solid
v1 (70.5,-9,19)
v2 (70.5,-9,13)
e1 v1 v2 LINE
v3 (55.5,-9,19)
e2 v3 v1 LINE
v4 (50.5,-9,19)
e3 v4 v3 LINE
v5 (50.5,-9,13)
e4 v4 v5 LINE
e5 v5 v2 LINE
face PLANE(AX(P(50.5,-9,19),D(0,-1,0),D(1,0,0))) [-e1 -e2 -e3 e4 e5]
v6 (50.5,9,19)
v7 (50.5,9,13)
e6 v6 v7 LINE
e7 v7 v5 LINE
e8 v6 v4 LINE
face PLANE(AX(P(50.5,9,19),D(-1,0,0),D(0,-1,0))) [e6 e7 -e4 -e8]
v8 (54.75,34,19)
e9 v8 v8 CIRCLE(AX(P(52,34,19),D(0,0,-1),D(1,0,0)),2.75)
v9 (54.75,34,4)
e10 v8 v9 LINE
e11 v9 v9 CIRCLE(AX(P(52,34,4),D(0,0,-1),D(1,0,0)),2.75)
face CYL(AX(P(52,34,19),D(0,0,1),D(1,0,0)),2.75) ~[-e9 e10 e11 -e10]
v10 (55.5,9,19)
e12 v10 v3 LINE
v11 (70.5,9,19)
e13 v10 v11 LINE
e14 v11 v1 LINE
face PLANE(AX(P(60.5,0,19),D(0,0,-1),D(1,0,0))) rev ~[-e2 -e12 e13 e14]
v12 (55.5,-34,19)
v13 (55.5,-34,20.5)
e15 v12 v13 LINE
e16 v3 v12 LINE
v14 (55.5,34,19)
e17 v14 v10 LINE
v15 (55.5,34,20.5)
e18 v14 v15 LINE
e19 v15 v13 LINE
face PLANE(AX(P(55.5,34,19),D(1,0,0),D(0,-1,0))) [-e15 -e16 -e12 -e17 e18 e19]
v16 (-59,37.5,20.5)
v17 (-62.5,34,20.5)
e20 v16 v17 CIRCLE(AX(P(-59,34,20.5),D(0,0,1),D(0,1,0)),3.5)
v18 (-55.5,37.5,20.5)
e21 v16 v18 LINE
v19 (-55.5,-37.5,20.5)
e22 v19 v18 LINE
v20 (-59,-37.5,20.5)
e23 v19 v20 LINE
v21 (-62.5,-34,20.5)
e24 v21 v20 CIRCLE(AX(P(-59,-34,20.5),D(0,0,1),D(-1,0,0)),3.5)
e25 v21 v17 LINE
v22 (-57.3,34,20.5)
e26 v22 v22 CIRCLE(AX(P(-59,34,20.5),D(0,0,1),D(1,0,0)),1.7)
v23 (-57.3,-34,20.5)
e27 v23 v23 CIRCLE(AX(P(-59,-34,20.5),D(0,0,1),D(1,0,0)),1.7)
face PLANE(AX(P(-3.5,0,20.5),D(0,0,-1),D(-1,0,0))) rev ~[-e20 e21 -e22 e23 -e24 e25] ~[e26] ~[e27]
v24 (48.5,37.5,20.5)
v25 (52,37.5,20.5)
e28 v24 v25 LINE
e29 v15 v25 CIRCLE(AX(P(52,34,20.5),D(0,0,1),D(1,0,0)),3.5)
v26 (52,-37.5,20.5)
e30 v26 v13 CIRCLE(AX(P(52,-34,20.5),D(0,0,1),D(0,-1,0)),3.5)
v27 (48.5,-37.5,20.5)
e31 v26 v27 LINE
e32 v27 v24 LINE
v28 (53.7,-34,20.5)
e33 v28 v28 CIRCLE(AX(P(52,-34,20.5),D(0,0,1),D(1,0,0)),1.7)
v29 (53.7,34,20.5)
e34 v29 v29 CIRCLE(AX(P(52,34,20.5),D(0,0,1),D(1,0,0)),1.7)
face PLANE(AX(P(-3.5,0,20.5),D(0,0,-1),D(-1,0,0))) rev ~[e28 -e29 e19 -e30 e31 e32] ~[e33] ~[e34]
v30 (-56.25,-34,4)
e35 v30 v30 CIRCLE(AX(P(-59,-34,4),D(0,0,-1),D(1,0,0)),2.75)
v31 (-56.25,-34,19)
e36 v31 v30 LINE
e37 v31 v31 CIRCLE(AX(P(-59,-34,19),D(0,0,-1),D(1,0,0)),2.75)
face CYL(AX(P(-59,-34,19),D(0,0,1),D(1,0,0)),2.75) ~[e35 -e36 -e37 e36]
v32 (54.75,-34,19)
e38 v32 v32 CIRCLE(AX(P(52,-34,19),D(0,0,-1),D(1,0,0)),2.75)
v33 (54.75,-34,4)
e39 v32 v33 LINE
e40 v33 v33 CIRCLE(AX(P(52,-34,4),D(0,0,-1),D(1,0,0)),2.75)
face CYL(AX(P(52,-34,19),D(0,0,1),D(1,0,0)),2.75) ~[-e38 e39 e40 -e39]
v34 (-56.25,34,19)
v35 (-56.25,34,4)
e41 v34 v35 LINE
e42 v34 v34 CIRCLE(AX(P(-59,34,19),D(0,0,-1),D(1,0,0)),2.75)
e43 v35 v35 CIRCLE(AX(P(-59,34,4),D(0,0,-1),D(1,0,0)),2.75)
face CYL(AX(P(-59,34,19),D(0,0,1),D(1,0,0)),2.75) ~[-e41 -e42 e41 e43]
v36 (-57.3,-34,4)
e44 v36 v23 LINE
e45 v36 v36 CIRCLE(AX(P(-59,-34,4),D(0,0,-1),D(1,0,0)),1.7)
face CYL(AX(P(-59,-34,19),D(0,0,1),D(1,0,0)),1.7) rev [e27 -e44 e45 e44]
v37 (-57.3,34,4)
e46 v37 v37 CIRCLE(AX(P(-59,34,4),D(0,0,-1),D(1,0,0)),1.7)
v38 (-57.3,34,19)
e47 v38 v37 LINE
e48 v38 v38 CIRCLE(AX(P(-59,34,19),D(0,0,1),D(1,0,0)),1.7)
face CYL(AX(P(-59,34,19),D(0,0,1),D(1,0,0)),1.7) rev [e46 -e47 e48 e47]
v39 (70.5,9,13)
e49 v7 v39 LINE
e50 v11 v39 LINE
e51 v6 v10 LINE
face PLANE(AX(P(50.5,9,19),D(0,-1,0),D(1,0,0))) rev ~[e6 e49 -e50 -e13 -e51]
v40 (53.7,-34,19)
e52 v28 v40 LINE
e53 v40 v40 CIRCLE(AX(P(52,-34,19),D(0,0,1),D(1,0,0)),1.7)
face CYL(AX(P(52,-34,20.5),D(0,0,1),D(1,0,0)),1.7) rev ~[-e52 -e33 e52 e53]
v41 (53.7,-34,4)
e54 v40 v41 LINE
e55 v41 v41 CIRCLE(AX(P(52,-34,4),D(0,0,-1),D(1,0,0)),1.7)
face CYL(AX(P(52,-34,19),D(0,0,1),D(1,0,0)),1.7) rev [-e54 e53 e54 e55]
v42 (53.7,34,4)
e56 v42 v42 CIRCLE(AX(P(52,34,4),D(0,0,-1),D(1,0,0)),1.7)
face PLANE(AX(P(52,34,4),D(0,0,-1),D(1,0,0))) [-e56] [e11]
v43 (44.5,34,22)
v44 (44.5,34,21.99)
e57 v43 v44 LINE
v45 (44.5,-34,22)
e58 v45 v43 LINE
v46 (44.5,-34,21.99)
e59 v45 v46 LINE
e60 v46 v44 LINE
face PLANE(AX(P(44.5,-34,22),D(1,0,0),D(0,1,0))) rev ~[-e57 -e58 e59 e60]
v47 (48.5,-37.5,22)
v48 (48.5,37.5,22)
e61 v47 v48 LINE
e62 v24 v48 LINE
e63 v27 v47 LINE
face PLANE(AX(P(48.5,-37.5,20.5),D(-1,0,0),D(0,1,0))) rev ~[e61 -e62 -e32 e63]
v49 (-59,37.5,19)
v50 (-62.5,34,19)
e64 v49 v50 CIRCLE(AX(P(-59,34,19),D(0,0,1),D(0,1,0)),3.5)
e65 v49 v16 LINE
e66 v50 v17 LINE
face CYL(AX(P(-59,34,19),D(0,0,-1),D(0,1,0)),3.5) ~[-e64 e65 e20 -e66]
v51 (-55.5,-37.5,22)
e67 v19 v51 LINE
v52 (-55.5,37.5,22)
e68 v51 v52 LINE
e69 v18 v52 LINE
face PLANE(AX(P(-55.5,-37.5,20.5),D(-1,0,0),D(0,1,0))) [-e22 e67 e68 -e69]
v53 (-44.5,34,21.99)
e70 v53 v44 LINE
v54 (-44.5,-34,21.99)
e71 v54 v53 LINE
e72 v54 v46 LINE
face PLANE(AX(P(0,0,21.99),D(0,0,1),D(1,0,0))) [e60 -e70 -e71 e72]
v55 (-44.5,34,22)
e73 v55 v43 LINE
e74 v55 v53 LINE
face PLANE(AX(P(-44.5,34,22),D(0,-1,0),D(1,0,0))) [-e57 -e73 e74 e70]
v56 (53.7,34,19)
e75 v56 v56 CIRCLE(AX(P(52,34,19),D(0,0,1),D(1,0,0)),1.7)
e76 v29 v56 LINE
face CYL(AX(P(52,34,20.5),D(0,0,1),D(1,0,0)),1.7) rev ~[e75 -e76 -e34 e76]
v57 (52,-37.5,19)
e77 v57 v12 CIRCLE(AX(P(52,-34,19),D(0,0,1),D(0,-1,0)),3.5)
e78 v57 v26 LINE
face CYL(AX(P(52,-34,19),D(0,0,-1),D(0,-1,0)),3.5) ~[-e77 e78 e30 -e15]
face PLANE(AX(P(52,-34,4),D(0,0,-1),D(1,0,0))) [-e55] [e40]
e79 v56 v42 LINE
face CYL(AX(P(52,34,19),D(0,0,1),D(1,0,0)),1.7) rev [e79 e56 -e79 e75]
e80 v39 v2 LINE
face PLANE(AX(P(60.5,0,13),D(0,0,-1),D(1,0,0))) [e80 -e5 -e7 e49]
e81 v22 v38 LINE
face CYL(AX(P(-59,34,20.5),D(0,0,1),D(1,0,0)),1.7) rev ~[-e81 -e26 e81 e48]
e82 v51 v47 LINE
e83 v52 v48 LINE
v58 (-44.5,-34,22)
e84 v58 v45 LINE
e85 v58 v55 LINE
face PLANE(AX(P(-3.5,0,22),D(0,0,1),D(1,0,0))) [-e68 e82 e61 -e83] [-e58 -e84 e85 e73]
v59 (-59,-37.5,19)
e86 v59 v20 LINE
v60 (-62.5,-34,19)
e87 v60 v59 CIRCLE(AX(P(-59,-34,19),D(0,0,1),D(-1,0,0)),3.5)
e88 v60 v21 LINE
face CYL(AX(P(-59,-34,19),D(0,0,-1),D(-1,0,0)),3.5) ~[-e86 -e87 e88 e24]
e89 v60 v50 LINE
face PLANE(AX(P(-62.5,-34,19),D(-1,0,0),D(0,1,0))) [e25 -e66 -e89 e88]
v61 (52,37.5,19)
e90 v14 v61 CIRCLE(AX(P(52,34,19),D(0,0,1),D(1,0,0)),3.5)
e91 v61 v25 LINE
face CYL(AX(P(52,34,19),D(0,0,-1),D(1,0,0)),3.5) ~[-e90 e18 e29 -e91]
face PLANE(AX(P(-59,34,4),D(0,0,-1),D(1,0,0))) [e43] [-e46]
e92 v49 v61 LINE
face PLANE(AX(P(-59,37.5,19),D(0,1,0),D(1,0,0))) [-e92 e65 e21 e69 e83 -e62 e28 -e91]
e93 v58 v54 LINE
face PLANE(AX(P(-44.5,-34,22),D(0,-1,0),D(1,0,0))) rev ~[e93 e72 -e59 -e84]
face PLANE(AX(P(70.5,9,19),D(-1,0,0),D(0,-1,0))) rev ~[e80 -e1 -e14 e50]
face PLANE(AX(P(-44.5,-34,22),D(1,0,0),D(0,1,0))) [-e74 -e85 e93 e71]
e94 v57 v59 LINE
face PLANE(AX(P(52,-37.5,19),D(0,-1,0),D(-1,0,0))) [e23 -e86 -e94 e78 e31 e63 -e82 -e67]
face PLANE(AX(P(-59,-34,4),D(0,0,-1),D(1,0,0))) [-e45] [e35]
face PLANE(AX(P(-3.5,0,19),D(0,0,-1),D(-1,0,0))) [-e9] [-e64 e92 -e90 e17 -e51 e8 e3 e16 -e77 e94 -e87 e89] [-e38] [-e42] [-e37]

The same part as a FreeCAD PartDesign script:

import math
import FreeCAD as App
import Part
import Sketcher

V = App.Vector

doc = App.newDocument("Part")
body = doc.addObject("PartDesign::Body", "Body")

sketch1 = doc.addObject("Sketcher::SketchObject", "Sketch")
body.addObject(sketch1)
sketch1.AttachmentSupport = (doc.XY_Plane, [""])
sketch1.MapMode = "FlatFace"
sketch1.addGeometry([
    Part.LineSegment(V(114.5, 75, 0), V(3.5, 75, 0)),
    Part.ArcOfCircle(Part.Circle(V(3.5, 71.5, 0), V(0, 0, 1), 3.5), math.radians(90), math.radians(180)),
    Part.LineSegment(V(0, 71.5, 0), V(0, 3.5, 0)),
    Part.ArcOfCircle(Part.Circle(V(3.5, 3.5, 0), V(0, 0, 1), 3.5), math.radians(180), math.radians(270)),
    Part.LineSegment(V(3.5, 0, 0), V(114.5, 0, 0)),
    Part.ArcOfCircle(Part.Circle(V(114.5, 3.5, 0), V(0, 0, 1), 3.5), math.radians(-90), math.radians(0)),
    Part.LineSegment(V(118, 3.5, 0), V(118, 71.5, 0)),
    Part.ArcOfCircle(Part.Circle(V(114.5, 71.5, 0), V(0, 0, 1), 3.5), math.radians(0), math.radians(90)),
], False)
sketch1.addConstraint([
    Sketcher.Constraint("Tangent", 0, 2, 1, 1),
    Sketcher.Constraint("Tangent", 1, 2, 2, 1),
    Sketcher.Constraint("Tangent", 2, 2, 3, 1),
    Sketcher.Constraint("Tangent", 3, 2, 4, 1),
    Sketcher.Constraint("Tangent", 4, 2, 5, 1),
    Sketcher.Constraint("Tangent", 5, 2, 6, 1),
    Sketcher.Constraint("Tangent", 6, 2, 7, 1),
    Sketcher.Constraint("Tangent", 7, 2, 0, 1),
    Sketcher.Constraint("Horizontal", 0),
    Sketcher.Constraint("Vertical", 2),
    Sketcher.Constraint("Horizontal", 4),
    Sketcher.Constraint("Vertical", 6),
    Sketcher.Constraint("Equal", 1, 3),
    Sketcher.Constraint("Equal", 3, 5),
    Sketcher.Constraint("Equal", 5, 7),
    Sketcher.Constraint("PointOnObject", 1, 2, -2),
    Sketcher.Constraint("PointOnObject", 3, 2, -1),
    Sketcher.Constraint("Radius", 1, 3.5),
    Sketcher.Constraint("DistanceX", 0, 2, 0, 1, 111.0),
    Sketcher.Constraint("DistanceY", 2, 2, 2, 1, 68.0),
])
pad1 = doc.addObject("PartDesign::Pad", "Pad")
body.addObject(pad1)
pad1.Profile = sketch1
pad1.Length = 1.5

sketch2 = doc.addObject("Sketcher::SketchObject", "Sketch001")
body.addObject(sketch2)
sketch2.AttachmentSupport = (doc.XY_Plane, [""])
sketch2.MapMode = "FlatFace"
sketch2.AttachmentOffset = App.Placement(V(0, 0, 1.5), App.Rotation())
sketch2.addGeometry([
    Part.Circle(V(3.5, 3.5, 0), V(0, 0, 1), 1.7),
    Part.Circle(V(3.5, 71.5, 0), V(0, 0, 1), 1.7),
    Part.Circle(V(114.5, 71.5, 0), V(0, 0, 1), 1.7),
    Part.Circle(V(114.5, 3.5, 0), V(0, 0, 1), 1.7),
], False)
sketch2.addConstraint([
    Sketcher.Constraint("Equal", 0, 1),
    Sketcher.Constraint("Equal", 1, 2),
    Sketcher.Constraint("Equal", 2, 3),
    Sketcher.Constraint("Horizontal", 1, 3, 2, 3),
    Sketcher.Constraint("Horizontal", 0, 3, 3, 3),
    Sketcher.Constraint("Vertical", 0, 3, 1, 3),
    Sketcher.Constraint("Vertical", 2, 3, 3, 3),
    Sketcher.Constraint("Diameter", 0, 3.4),
    Sketcher.Constraint("DistanceY", 0, 3, 1, 3, 68.0),
    Sketcher.Constraint("DistanceX", 1, 3, 2, 3, 111.0),
    Sketcher.Constraint("DistanceX", -1, 1, 0, 3, 3.5),
    Sketcher.Constraint("DistanceY", -1, 1, 0, 3, 3.5),
])
pocket1 = doc.addObject("PartDesign::Pocket", "Pocket")
body.addObject(pocket1)
pocket1.Profile = sketch2
pocket1.Type = "ThroughAll"

sketch3 = doc.addObject("Sketcher::SketchObject", "Sketch002")
body.addObject(sketch3)
sketch3.AttachmentSupport = (doc.XY_Plane, [""])
sketch3.MapMode = "FlatFace"
sketch3.AttachmentOffset = App.Placement(V(0, 0, 1.5), App.Rotation())
sketch3.addGeometry([
    Part.LineSegment(V(7, 75, 0), V(7, 0, 0)),
    Part.LineSegment(V(7, 0, 0), V(111, 0, 0)),
    Part.LineSegment(V(111, 0, 0), V(111, 75, 0)),
    Part.LineSegment(V(111, 75, 0), V(7, 75, 0)),
], False)
sketch3.addConstraint([
    Sketcher.Constraint("Coincident", 0, 2, 1, 1),
    Sketcher.Constraint("Coincident", 1, 2, 2, 1),
    Sketcher.Constraint("Coincident", 2, 2, 3, 1),
    Sketcher.Constraint("Coincident", 3, 2, 0, 1),
    Sketcher.Constraint("Vertical", 0),
    Sketcher.Constraint("Horizontal", 1),
    Sketcher.Constraint("Vertical", 2),
    Sketcher.Constraint("Horizontal", 3),
    Sketcher.Constraint("PointOnObject", 0, 2, -1),
    Sketcher.Constraint("DistanceX", 1, 1, 1, 2, 104.0),
    Sketcher.Constraint("DistanceY", 0, 2, 0, 1, 75.0),
    Sketcher.Constraint("DistanceX", -1, 1, 0, 2, 7.0),
])
pad2 = doc.addObject("PartDesign::Pad", "Pad001")
body.addObject(pad2)
pad2.Profile = sketch3
pad2.Length = 1.5

sketch4 = doc.addObject("Sketcher::SketchObject", "Sketch003")
body.addObject(sketch4)
sketch4.AttachmentSupport = (doc.XY_Plane, [""])
sketch4.MapMode = "FlatFace"
sketch4.AttachmentOffset = App.Placement(V(0, 0, 3), App.Rotation())
sketch4.addGeometry([
    Part.LineSegment(V(18, 72, 0), V(18, 4, 0)),
    Part.LineSegment(V(18, 4, 0), V(107, 4, 0)),
    Part.LineSegment(V(107, 4, 0), V(107, 72, 0)),
    Part.LineSegment(V(107, 72, 0), V(18, 72, 0)),
], False)
sketch4.addConstraint([
    Sketcher.Constraint("Coincident", 0, 2, 1, 1),
    Sketcher.Constraint("Coincident", 1, 2, 2, 1),
    Sketcher.Constraint("Coincident", 2, 2, 3, 1),
    Sketcher.Constraint("Coincident", 3, 2, 0, 1),
    Sketcher.Constraint("Vertical", 0),
    Sketcher.Constraint("Horizontal", 1),
    Sketcher.Constraint("Vertical", 2),
    Sketcher.Constraint("Horizontal", 3),
    Sketcher.Constraint("DistanceX", 1, 1, 1, 2, 89.0),
    Sketcher.Constraint("DistanceY", 0, 2, 0, 1, 68.0),
    Sketcher.Constraint("DistanceX", -1, 1, 0, 2, 18.0),
    Sketcher.Constraint("DistanceY", -1, 1, 0, 2, 3.5),
])
pocket2 = doc.addObject("PartDesign::Pocket", "Pocket001")
body.addObject(pocket2)
pocket2.Profile = sketch4
pocket2.Length = 0.01

sketch5 = doc.addObject("Sketcher::SketchObject", "Sketch004")
body.addObject(sketch5)
sketch5.AttachmentSupport = (doc.XY_Plane, [""])
sketch5.MapMode = "FlatFace"
sketch5.addGeometry([
    Part.LineSegment(V(113, 28, 0), V(113, 46, 0)),
    Part.LineSegment(V(113, 46, 0), V(133, 46, 0)),
    Part.LineSegment(V(133, 46, 0), V(133, 28, 0)),
    Part.LineSegment(V(133, 28, 0), V(113, 28, 0)),
], False)
sketch5.addConstraint([
    Sketcher.Constraint("Coincident", 0, 2, 1, 1),
    Sketcher.Constraint("Coincident", 1, 2, 2, 1),
    Sketcher.Constraint("Coincident", 2, 2, 3, 1),
    Sketcher.Constraint("Coincident", 3, 2, 0, 1),
    Sketcher.Constraint("Vertical", 0),
    Sketcher.Constraint("Horizontal", 1),
    Sketcher.Constraint("Vertical", 2),
    Sketcher.Constraint("Horizontal", 3),
    Sketcher.Constraint("DistanceX", 1, 1, 1, 2, 20.0),
    Sketcher.Constraint("DistanceY", 0, 1, 0, 2, 18.0),
    Sketcher.Constraint("DistanceX", -1, 1, 0, 2, 113.0),
    Sketcher.Constraint("DistanceY", -1, 1, 0, 2, 46.5),
])
pad3 = doc.addObject("PartDesign::Pad", "Pad002")
body.addObject(pad3)
pad3.Profile = sketch5
pad3.Length = 6
pad3.Reversed = True

sketch6 = doc.addObject("Sketcher::SketchObject", "Sketch005")
body.addObject(sketch6)
sketch6.AttachmentSupport = (doc.XY_Plane, [""])
sketch6.MapMode = "FlatFace"
sketch6.addGeometry([
    Part.Circle(V(3.5, 3.5, 0), V(0, 0, 1), 2.8),
    Part.Circle(V(3.5, 3.5, 0), V(0, 0, 1), 1.7),
    Part.Circle(V(114.5, 3.5, 0), V(0, 0, 1), 2.8),
    Part.Circle(V(114.5, 3.5, 0), V(0, 0, 1), 1.7),
    Part.Circle(V(114.5, 71.5, 0), V(0, 0, 1), 2.8),
    Part.Circle(V(114.5, 71.5, 0), V(0, 0, 1), 1.7),
    Part.Circle(V(3.5, 71.5, 0), V(0, 0, 1), 2.8),
    Part.Circle(V(3.5, 71.5, 0), V(0, 0, 1), 1.7),
], False)
sketch6.addConstraint([
    Sketcher.Constraint("Coincident", 1, 3, 0, 3),
    Sketcher.Constraint("Coincident", 3, 3, 2, 3),
    Sketcher.Constraint("Coincident", 5, 3, 4, 3),
    Sketcher.Constraint("Coincident", 7, 3, 6, 3),
    Sketcher.Constraint("Equal", 0, 2),
    Sketcher.Constraint("Equal", 1, 3),
    Sketcher.Constraint("Equal", 2, 4),
    Sketcher.Constraint("Equal", 3, 5),
    Sketcher.Constraint("Equal", 4, 6),
    Sketcher.Constraint("Equal", 5, 7),
    Sketcher.Constraint("Horizontal", 1, 3, 2, 3),
    Sketcher.Constraint("Horizontal", 5, 3, 6, 3),
    Sketcher.Constraint("Vertical", 3, 3, 4, 3),
    Sketcher.Constraint("Vertical", 1, 3, 6, 3),
    Sketcher.Constraint("Diameter", 0, 5.5),
    Sketcher.Constraint("Diameter", 1, 3.4),
    Sketcher.Constraint("DistanceX", 0, 3, 2, 3, 111.0),
    Sketcher.Constraint("DistanceY", 2, 3, 4, 3, 68.0),
    Sketcher.Constraint("DistanceX", -1, 1, 0, 3, 3.5),
    Sketcher.Constraint("DistanceY", -1, 1, 0, 3, 3.5),
])
pad4 = doc.addObject("PartDesign::Pad", "Pad003")
body.addObject(pad4)
pad4.Profile = sketch6
pad4.Length = 15
pad4.Reversed = True
body2 = doc.addObject("PartDesign::Body", "Body001")
doc.recompute()

body.Placement = App.Placement(V(-62.5, -37.5, 19), App.Rotation(V(0, 0, 1), 0))
boolean = doc.addObject("PartDesign::Boolean", "Boolean")
body2.addObject(boolean)
boolean.Type = "Fuse"
boolean.addObjects([body])

doc.recompute()
